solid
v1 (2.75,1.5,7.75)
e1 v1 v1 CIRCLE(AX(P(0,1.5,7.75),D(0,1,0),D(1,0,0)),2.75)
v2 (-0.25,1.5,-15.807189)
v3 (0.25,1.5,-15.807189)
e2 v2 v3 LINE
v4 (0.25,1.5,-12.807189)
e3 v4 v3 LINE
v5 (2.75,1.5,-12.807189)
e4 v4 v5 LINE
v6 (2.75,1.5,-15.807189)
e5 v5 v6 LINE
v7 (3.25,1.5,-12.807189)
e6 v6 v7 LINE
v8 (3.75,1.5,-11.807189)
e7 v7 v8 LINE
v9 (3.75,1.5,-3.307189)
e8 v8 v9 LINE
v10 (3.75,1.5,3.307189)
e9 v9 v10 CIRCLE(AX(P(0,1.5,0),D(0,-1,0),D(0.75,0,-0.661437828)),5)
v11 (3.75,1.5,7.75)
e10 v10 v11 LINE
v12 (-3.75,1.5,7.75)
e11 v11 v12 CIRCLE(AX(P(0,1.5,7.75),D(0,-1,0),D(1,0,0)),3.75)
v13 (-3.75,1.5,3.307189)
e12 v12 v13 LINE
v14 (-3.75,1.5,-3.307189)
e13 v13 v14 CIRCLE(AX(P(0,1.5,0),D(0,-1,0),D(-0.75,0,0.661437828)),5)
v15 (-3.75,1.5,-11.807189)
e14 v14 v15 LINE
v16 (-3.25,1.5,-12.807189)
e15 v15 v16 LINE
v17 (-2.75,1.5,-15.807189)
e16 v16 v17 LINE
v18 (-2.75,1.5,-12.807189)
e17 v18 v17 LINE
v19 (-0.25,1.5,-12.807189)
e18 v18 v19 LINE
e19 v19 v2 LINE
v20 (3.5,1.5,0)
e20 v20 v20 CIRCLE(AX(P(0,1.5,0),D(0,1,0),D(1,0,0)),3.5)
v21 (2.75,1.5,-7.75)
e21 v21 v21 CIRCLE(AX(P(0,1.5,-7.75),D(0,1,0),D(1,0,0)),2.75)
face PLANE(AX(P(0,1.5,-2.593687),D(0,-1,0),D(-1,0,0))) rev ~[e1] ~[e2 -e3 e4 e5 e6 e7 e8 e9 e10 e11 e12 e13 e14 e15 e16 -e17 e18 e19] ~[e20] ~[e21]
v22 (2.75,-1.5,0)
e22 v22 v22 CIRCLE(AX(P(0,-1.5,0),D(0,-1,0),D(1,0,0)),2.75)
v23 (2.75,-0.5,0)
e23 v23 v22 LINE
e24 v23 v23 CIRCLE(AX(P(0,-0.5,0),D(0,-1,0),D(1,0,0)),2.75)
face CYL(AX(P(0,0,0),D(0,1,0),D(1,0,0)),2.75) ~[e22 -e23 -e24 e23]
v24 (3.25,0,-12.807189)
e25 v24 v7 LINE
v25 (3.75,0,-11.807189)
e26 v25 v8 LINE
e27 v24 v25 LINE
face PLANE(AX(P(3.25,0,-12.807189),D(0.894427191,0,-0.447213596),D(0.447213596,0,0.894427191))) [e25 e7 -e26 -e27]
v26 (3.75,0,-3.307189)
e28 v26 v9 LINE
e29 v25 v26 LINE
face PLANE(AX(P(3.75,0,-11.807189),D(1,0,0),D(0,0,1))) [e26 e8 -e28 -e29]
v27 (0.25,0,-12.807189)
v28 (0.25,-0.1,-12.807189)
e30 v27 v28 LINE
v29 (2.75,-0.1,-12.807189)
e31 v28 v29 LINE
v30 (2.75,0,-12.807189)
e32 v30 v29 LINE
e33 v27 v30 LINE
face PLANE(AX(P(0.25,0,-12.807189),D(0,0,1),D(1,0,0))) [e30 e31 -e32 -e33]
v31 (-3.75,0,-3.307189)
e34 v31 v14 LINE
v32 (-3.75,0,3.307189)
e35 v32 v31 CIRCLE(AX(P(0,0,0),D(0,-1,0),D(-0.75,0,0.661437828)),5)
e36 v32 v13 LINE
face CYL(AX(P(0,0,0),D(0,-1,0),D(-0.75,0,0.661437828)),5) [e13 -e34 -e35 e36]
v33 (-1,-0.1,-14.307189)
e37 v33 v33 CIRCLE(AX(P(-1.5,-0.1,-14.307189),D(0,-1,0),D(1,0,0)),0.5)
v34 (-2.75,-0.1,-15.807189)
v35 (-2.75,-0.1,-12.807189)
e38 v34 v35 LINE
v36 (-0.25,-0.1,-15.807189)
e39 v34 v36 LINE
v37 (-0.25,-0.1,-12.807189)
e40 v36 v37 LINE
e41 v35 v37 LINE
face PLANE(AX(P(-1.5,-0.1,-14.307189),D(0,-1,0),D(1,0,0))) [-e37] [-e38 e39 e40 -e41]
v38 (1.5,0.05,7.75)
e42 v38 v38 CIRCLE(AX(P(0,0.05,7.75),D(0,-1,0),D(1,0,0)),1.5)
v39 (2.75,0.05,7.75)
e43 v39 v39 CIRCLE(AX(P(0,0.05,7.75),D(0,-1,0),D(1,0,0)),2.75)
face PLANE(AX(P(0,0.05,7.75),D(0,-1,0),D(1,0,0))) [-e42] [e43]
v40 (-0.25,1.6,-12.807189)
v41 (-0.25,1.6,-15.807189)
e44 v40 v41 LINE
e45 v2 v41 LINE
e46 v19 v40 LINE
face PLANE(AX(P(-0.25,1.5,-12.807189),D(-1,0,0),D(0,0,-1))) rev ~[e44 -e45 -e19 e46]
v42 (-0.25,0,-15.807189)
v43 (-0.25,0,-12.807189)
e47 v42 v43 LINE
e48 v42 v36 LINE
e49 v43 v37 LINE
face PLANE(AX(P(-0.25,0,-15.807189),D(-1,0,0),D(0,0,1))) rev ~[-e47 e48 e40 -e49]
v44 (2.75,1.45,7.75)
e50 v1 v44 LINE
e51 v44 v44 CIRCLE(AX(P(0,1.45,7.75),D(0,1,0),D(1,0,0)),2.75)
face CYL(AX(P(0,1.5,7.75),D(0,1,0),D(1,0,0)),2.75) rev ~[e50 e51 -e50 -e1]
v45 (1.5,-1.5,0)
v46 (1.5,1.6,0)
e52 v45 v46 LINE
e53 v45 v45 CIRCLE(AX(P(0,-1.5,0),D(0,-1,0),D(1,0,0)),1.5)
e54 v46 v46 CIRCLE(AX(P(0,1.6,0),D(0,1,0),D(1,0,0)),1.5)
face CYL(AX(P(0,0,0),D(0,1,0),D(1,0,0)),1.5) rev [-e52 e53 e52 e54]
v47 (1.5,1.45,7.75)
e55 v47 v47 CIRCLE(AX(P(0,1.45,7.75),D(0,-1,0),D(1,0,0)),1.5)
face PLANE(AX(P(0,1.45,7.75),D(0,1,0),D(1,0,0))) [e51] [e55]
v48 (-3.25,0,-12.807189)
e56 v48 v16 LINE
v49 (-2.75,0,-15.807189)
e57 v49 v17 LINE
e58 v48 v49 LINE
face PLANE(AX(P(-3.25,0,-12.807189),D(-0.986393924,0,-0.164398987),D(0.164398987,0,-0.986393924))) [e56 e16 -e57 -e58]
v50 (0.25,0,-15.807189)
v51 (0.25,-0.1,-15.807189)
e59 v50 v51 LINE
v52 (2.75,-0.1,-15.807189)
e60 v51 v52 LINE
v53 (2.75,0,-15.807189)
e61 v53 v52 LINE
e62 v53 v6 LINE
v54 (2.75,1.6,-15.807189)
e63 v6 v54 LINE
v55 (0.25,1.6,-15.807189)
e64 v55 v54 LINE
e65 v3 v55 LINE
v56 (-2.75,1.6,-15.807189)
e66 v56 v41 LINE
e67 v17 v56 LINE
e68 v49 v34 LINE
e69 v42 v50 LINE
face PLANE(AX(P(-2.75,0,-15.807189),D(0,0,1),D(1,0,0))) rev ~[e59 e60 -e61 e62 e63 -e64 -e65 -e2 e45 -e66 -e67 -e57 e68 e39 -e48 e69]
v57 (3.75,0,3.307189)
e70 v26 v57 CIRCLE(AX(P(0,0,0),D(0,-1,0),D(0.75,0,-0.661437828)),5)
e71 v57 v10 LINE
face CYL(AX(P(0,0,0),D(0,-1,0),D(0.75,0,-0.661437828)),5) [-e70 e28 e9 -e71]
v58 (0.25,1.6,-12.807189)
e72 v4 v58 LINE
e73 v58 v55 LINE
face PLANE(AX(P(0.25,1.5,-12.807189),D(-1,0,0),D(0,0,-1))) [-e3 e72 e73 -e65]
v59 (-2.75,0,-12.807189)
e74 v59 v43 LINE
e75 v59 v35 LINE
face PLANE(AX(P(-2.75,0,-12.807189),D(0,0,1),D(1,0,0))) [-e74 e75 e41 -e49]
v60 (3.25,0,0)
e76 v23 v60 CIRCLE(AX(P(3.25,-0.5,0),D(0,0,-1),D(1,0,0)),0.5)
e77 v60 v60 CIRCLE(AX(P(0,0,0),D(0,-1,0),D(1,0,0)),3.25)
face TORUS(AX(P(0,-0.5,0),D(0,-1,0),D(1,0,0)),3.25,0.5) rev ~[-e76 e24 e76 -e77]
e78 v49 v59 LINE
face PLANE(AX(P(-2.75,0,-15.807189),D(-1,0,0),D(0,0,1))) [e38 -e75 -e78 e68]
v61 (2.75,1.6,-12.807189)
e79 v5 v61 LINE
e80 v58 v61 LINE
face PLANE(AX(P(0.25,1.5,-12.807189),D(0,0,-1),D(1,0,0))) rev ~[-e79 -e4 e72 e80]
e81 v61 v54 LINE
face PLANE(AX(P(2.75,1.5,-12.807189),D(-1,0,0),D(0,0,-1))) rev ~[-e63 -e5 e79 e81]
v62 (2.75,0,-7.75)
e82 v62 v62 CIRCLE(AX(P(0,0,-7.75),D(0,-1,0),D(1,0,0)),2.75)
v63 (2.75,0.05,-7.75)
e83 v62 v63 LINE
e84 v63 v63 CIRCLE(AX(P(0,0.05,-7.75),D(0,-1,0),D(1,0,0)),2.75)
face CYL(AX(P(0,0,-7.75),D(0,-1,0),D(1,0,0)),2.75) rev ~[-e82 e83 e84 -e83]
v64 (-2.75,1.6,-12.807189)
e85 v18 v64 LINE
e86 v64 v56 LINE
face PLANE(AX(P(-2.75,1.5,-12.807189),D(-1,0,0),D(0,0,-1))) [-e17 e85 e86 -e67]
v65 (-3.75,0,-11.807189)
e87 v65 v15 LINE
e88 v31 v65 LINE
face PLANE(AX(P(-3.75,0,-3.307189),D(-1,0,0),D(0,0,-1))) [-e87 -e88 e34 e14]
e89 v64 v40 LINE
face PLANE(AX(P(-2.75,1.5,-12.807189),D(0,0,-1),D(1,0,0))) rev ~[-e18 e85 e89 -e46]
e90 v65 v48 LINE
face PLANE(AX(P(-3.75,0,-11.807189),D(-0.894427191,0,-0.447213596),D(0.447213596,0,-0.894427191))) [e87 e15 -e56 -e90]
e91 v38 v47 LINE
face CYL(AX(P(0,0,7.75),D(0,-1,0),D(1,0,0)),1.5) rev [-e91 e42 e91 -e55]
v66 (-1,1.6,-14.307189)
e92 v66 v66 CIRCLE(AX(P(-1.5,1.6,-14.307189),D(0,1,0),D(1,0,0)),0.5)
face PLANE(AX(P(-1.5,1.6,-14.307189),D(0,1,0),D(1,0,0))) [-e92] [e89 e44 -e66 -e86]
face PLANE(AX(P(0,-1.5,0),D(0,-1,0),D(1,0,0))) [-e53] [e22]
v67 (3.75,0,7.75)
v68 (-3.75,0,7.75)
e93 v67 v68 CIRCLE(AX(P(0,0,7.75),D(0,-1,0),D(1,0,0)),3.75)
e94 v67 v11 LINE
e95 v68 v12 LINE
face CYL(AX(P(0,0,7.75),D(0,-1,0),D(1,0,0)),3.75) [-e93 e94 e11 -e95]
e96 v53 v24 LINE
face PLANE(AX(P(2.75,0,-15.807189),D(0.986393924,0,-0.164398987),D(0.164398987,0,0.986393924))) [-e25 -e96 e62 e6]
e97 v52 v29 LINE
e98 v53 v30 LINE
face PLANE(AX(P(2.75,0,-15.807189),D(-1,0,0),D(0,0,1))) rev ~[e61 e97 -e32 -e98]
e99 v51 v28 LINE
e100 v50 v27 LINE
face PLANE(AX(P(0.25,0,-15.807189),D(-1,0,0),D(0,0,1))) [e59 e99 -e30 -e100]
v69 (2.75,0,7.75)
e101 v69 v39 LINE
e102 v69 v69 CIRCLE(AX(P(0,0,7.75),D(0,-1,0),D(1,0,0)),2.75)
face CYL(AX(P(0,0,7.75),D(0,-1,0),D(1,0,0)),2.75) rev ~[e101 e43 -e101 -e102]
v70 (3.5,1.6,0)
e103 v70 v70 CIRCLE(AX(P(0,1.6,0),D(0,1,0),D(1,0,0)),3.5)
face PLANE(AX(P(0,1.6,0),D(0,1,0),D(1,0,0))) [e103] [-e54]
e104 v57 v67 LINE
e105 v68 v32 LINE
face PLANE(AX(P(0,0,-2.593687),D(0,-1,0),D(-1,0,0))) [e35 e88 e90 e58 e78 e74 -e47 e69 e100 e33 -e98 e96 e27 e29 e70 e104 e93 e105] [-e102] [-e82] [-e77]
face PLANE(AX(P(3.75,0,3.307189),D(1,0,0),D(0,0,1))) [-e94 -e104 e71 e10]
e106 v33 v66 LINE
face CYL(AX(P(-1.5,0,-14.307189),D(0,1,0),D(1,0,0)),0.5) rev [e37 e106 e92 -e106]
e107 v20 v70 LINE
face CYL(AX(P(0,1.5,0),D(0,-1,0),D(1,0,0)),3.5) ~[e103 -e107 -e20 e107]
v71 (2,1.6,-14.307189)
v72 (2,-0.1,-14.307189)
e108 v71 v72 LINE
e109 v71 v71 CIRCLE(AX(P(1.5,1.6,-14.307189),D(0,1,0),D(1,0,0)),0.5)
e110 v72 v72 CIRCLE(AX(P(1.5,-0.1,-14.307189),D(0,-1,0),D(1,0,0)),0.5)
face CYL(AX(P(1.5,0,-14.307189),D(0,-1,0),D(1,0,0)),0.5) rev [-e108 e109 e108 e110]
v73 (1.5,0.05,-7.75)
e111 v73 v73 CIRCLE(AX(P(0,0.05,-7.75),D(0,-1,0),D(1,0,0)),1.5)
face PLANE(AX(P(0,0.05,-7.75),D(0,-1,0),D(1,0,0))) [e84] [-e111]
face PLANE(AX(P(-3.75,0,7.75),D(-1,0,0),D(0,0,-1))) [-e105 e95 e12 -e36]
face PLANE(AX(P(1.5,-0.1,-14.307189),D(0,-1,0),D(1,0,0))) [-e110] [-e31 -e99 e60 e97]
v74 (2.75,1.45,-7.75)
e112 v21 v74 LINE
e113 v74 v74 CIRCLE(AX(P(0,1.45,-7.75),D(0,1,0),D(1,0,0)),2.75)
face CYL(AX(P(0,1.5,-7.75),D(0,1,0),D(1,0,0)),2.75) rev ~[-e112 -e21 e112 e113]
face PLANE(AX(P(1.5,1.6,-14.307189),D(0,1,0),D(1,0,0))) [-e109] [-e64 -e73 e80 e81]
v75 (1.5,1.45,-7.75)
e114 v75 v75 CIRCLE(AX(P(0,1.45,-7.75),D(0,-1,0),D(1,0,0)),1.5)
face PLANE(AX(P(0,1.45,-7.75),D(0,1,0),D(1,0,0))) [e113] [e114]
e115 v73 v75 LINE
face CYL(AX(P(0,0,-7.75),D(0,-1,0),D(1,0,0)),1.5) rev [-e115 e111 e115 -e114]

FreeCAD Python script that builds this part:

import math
import FreeCAD as App
import Part
import Sketcher
from FreeCAD import Vector


def edges_at(feature, points):
    """Names of the edges that pass closest to the given points."""
    edges = feature.Shape.Edges
    near = lambda p: min(range(len(edges)), key=lambda i: edges[i].distToShape(Part.Vertex(*p))[0])
    return sorted({f"Edge{near(p) + 1}" for p in points})


def add_polygon(sketch, points):
    """Adds a closed chain of lines whose ends are joined by coincident constraints."""
    first, n = sketch.GeometryCount, len(points)
    for a, b in zip(points, points[1:] + points[:1]):
        sketch.addGeometry(Part.LineSegment(App.Vector(*a, 0), App.Vector(*b, 0)), False)
    for i in range(n):
        sketch.addConstraint(Sketcher.Constraint("Coincident", first + i, 2, first + (i + 1) % n, 1))

doc = App.newDocument("Part")
body = doc.addObject("PartDesign::Body", "Body")

# Sketch on XZ plane
sketch1 = body.newObject("Sketcher::SketchObject", "Sketch")
sketch1.AttachmentSupport = (doc.getObject("XZ_Plane"), [""])
sketch1.MapMode = "FlatFace"
sketch1.addGeometry([
    Part.LineSegment(Vector(-3.75, 3.307189, 0), Vector(-3.75, 7.75, 0)),  # 0
    Part.ArcOfCircle(Part.Circle(Vector(0, 7.75, 0), Vector(0, 0, 1), 3.75), math.radians(0), math.radians(180)),  # 1
    Part.LineSegment(Vector(3.75, 7.75, 0), Vector(3.75, 3.307189, 0)),  # 2
    Part.ArcOfCircle(Part.Circle(Vector(0, 0, 0), Vector(0, 0, 1), 5), math.radians(-41.409622), math.radians(41.409622)),  # 3
    Part.LineSegment(Vector(3.75, -3.307189, 0), Vector(3.75, -11.807189, 0)),  # 4
    Part.LineSegment(Vector(3.75, -11.807189, 0), Vector(3.25, -12.807189, 0)),  # 5
    Part.LineSegment(Vector(3.25, -12.807189, 0), Vector(2.75, -15.807189, 0)),  # 6
    Part.LineSegment(Vector(2.75, -15.807189, 0), Vector(-2.75, -15.807189, 0)),  # 7
    Part.LineSegment(Vector(-2.75, -15.807189, 0), Vector(-3.25, -12.807189, 0)),  # 8
    Part.LineSegment(Vector(-3.25, -12.807189, 0), Vector(-3.75, -11.807189, 0)),  # 9
    Part.LineSegment(Vector(-3.75, -11.807189, 0), Vector(-3.75, -3.307189, 0)),  # 10
    Part.ArcOfCircle(Part.Circle(Vector(0, 0, 0), Vector(0, 0, 1), 5), math.radians(138.590378), math.radians(221.409622)),  # 11
    Part.Circle(Vector(0, 7.75, 0), Vector(0, 0, 1), 1.5),  # 12
    Part.Circle(Vector(0, 0, 0), Vector(0, 0, 1), 1.5),  # 13
    Part.Circle(Vector(0, -7.75, 0), Vector(0, 0, 1), 1.5),  # 14
    Part.Circle(Vector(1.5, -14.307189, 0), Vector(0, 0, 1), 0.5),  # 15
    Part.Circle(Vector(-1.5, -14.307189, 0), Vector(0, 0, 1), 0.5),  # 16
], False)
sketch1.addConstraint([
    Sketcher.Constraint("Tangent", 0, 2, 1, 2),
    Sketcher.Constraint("Tangent", 1, 1, 2, 1),
    Sketcher.Constraint("Coincident", 2, 2, 3, 2),
    Sketcher.Constraint("Coincident", 3, 1, 4, 1),
    Sketcher.Constraint("Coincident", 4, 2, 5, 1),
    Sketcher.Constraint("Coincident", 5, 2, 6, 1),
    Sketcher.Constraint("Coincident", 6, 2, 7, 1),
    Sketcher.Constraint("Coincident", 7, 2, 8, 1),
    Sketcher.Constraint("Coincident", 8, 2, 9, 1),
    Sketcher.Constraint("Coincident", 9, 2, 10, 1),
    Sketcher.Constraint("Coincident", 10, 2, 11, 2),
    Sketcher.Constraint("Coincident", 11, 1, 0, 1),
    Sketcher.Constraint("Vertical", 0),
    Sketcher.Constraint("Vertical", 2),
    Sketcher.Constraint("Vertical", 4),
    Sketcher.Constraint("Horizontal", 7),
    Sketcher.Constraint("Vertical", 10),
    Sketcher.Constraint("Coincident", 3, 3, -1, 1),
    Sketcher.Constraint("Coincident", 11, 3, -1, 1),
    Sketcher.Constraint("Coincident", 13, 3, -1, 1),
    Sketcher.Constraint("Coincident", 12, 3, 1, 3),
    Sketcher.Constraint("Equal", 3, 11),
    Sketcher.Constraint("Equal", 12, 13),
    Sketcher.Constraint("Equal", 13, 14),
    Sketcher.Constraint("Equal", 15, 16),
    Sketcher.Constraint("Symmetric", 1, 3, 14, 3, -1, 1),
    Sketcher.Constraint("Symmetric", 15, 3, 16, 3, -2),
    Sketcher.Constraint("Symmetric", 5, 2, 8, 2, -2),
    Sketcher.Constraint("Symmetric", 4, 2, 9, 2, -2),
    Sketcher.Constraint("PointOnObject", 1, 3, -2),
    Sketcher.Constraint("Vertical", 2, 2, 3, 1),
    Sketcher.Constraint("Equal", 6, 8),
    Sketcher.Constraint("Diameter", 12, 3.0),
    Sketcher.Constraint("Diameter", 15, 1.0),
    Sketcher.Constraint("Radius", 3, 5.0),
    Sketcher.Constraint("Radius", 1, 3.75),
    Sketcher.Constraint("DistanceX", 7, 2, 7, 1, 5.5),
    Sketcher.Constraint("DistanceY", 4, 2, 4, 1, 8.5),
    Sketcher.Constraint("DistanceX", 16, 3, 15, 3, 3.0),
    Sketcher.Constraint("DistanceY", 5, 2, 4, 2, 1.0),
    Sketcher.Constraint("DistanceY", 6, 2, 5, 2, 3.0),
    Sketcher.Constraint("DistanceX", 7, 2, 5, 2, 6.0),
    Sketcher.Constraint("DistanceY", 14, 3, 1, 3, 15.5),
    Sketcher.Constraint("DistanceY", 15, 3, 4, 2, 2.5),
])
pad1 = body.newObject("PartDesign::Pad", "Pad")
pad1.Profile = sketch1
pad1.Length = 1.5
pad1.Reversed = True

# Sketch on XZ plane
sketch2 = body.newObject("Sketcher::SketchObject", "Sketch001")
sketch2.AttachmentSupport = (doc.getObject("XZ_Plane"), [""])
sketch2.MapMode = "FlatFace"
sketch2.AttachmentOffset = App.Placement(Vector(0, 0, -1.5), App.Rotation())
sketch2.addGeometry([
    Part.Circle(Vector(0, 0, 0), Vector(0, 0, 1), 3.5),
    Part.Circle(Vector(0, 0, 0), Vector(0, 0, 1), 1.5),
], False)
sketch2.addConstraint([
    Sketcher.Constraint("Coincident", 0, 3, -1, 1),
    Sketcher.Constraint("Coincident", 1, 3, -1, 1),
    Sketcher.Constraint("Diameter", 0, 7.0),
    Sketcher.Constraint("Diameter", 1, 3.0),
])
pad2 = body.newObject("PartDesign::Pad", "Pad001")
pad2.Profile = sketch2
pad2.Length = 0.1
pad2.Reversed = True

# Sketch on XZ plane
sketch3 = body.newObject("Sketcher::SketchObject", "Sketch002")
sketch3.AttachmentSupport = (doc.getObject("XZ_Plane"), [""])
sketch3.MapMode = "FlatFace"
sketch3.AttachmentOffset = App.Placement(Vector(0, 0, -1.5), App.Rotation())
sketch3.addGeometry([
    Part.Circle(Vector(0, 7.75, 0), Vector(0, 0, 1), 2.75),
    Part.Circle(Vector(0, -7.75, 0), Vector(0, 0, 1), 2.75),
], False)
sketch3.addConstraint([
    Sketcher.Constraint("Equal", 0, 1),
    Sketcher.Constraint("Symmetric", 0, 3, 1, 3, -1, 1),
    Sketcher.Constraint("PointOnObject", 0, 3, -2),
    Sketcher.Constraint("Diameter", 0, 5.5),
    Sketcher.Constraint("DistanceY", 1, 3, 0, 3, 15.5),
])
pocket1 = body.newObject("PartDesign::Pocket", "Pocket")
pocket1.Profile = sketch3
pocket1.Length = 0.05
pocket1.Reversed = True

# Sketch on XZ plane
sketch4 = body.newObject("Sketcher::SketchObject", "Sketch003")
sketch4.AttachmentSupport = (doc.getObject("XZ_Plane"), [""])
sketch4.MapMode = "FlatFace"
sketch4.addGeometry([
    Part.Circle(Vector(0, -7.75, 0), Vector(0, 0, 1), 2.75),
    Part.Circle(Vector(0, 7.75, 0), Vector(0, 0, 1), 2.75),
], False)
sketch4.addConstraint([
    Sketcher.Constraint("Equal", 0, 1),
    Sketcher.Constraint("Symmetric", 0, 3, 1, 3, -1, 1),
    Sketcher.Constraint("PointOnObject", 0, 3, -2),
    Sketcher.Constraint("Diameter", 0, 5.5),
    Sketcher.Constraint("DistanceY", 0, 3, 1, 3, 15.5),
])
pocket2 = body.newObject("PartDesign::Pocket", "Pocket001")
pocket2.Profile = sketch4
pocket2.Length = 0.05

# Sketch on XZ plane
sketch5 = body.newObject("Sketcher::SketchObject", "Sketch004")
sketch5.AttachmentSupport = (doc.getObject("XZ_Plane"), [""])
sketch5.MapMode = "FlatFace"
sketch5.addGeometry([
    Part.Circle(Vector(0, 0, 0), Vector(0, 0, 1), 2.75),
    Part.Circle(Vector(0, 0, 0), Vector(0, 0, 1), 1.5),
], False)
sketch5.addConstraint([
    Sketcher.Constraint("Coincident", 0, 3, -1, 1),
    Sketcher.Constraint("Coincident", 1, 3, -1, 1),
    Sketcher.Constraint("Diameter", 1, 3.0),
    Sketcher.Constraint("Diameter", 0, 5.5),
])
pad3 = body.newObject("PartDesign::Pad", "Pad002")
pad3.Profile = sketch5
pad3.Length = 1.5
doc.recompute()

fillet = body.newObject("PartDesign::Fillet", "Fillet")
fillet.Base = (pad3, edges_at(pad3, [(-2.75, 0, 0)]))
fillet.Radius = 0.5

# Sketch on XZ plane
sketch6 = body.newObject("Sketcher::SketchObject", "Sketch005")
sketch6.AttachmentSupport = (doc.getObject("XZ_Plane"), [""])
sketch6.MapMode = "FlatFace"
sketch6.AttachmentOffset = App.Placement(Vector(0, 0, -1.5), App.Rotation())
add_polygon(sketch6, [(-2.75, -15.807189), (-2.75, -12.807189), (-0.25, -12.807189), (-0.25, -15.807189)])  # lines 0-3
sketch6.addGeometry(Part.Circle(Vector(-1.5, -14.307189, 0), Vector(0, 0, 1), 0.5), False)  # 4
add_polygon(sketch6, [(0.25, -15.807189), (0.25, -12.807189), (2.75, -12.807189), (2.75, -15.807189)])  # lines 5-8
sketch6.addGeometry(Part.Circle(Vector(1.5, -14.307189, 0), Vector(0, 0, 1), 0.5), False)  # 9
sketch6.addConstraint([
    Sketcher.Constraint("Vertical", 0),
    Sketcher.Constraint("Horizontal", 1),
    Sketcher.Constraint("Vertical", 2),
    Sketcher.Constraint("Horizontal", 3),
    Sketcher.Constraint("Vertical", 5),
    Sketcher.Constraint("Horizontal", 6),
    Sketcher.Constraint("Vertical", 7),
    Sketcher.Constraint("Horizontal", 8),
    Sketcher.Constraint("Equal", 4, 9),
    Sketcher.Constraint("Symmetric", 4, 3, 9, 3, -2),
    Sketcher.Constraint("Symmetric", 1, 2, 5, 2, -2),
    Sketcher.Constraint("Symmetric", 3, 2, 7, 2, -2),
    Sketcher.Constraint("Diameter", 4, 1.0),
    Sketcher.Constraint("DistanceY", 0, 1, 0, 2, 3.0),
    Sketcher.Constraint("DistanceX", 1, 1, 1, 2, 2.5),
    Sketcher.Constraint("DistanceX", 4, 3, 9, 3, 3.0),
    Sketcher.Constraint("DistanceX", 0, 2, 5, 2, 3.0),
    Sketcher.Constraint("DistanceY", 4, 3, 0, 2, 1.5),
    Sketcher.Constraint("DistanceY", 4, 3, -1, 1, 14.307189),
])
pad4 = body.newObject("PartDesign::Pad", "Pad003")
pad4.Profile = sketch6
pad4.Length = 0.1
pad4.Reversed = True

# Sketch on XZ plane
sketch7 = body.newObject("Sketcher::SketchObject", "Sketch006")
sketch7.AttachmentSupport = (doc.getObject("XZ_Plane"), [""])
sketch7.MapMode = "FlatFace"
add_polygon(sketch7, [(-2.75, -12.807189), (-2.75, -15.807189), (-0.25, -15.807189), (-0.25, -12.807189)])  # lines 0-3
sketch7.addGeometry(Part.Circle(Vector(-1.5, -14.307189, 0), Vector(0, 0, 1), 0.5), False)  # 4
add_polygon(sketch7, [(0.25, -12.807189), (0.25, -15.807189), (2.75, -15.807189), (2.75, -12.807189)])  # lines 5-8
sketch7.addGeometry(Part.Circle(Vector(1.5, -14.307189, 0), Vector(0, 0, 1), 0.5), False)  # 9
sketch7.addConstraint([
    Sketcher.Constraint("Vertical", 0),
    Sketcher.Constraint("Horizontal", 1),
    Sketcher.Constraint("Vertical", 2),
    Sketcher.Constraint("Horizontal", 3),
    Sketcher.Constraint("Vertical", 5),
    Sketcher.Constraint("Horizontal", 6),
    Sketcher.Constraint("Vertical", 7),
    Sketcher.Constraint("Horizontal", 8),
    Sketcher.Constraint("Equal", 4, 9),
    Sketcher.Constraint("Symmetric", 4, 3, 9, 3, -2),
    Sketcher.Constraint("Symmetric", 1, 2, 5, 2, -2),
    Sketcher.Constraint("Symmetric", 3, 2, 7, 2, -2),
    Sketcher.Constraint("Diameter", 4, 1.0),
    Sketcher.Constraint("DistanceY", 0, 2, 0, 1, 3.0),
    Sketcher.Constraint("DistanceX", 1, 1, 1, 2, 2.5),
    Sketcher.Constraint("DistanceX", 4, 3, 9, 3, 3.0),
    Sketcher.Constraint("DistanceX", 0, 2, 5, 2, 3.0),
    Sketcher.Constraint("DistanceY", 0, 2, 4, 3, 1.5),
    Sketcher.Constraint("DistanceY", 4, 3, -1, 1, 14.307189),
])
pad5 = body.newObject("PartDesign::Pad", "Pad004")
pad5.Profile = sketch7
pad5.Length = 0.1

doc.recompute()
